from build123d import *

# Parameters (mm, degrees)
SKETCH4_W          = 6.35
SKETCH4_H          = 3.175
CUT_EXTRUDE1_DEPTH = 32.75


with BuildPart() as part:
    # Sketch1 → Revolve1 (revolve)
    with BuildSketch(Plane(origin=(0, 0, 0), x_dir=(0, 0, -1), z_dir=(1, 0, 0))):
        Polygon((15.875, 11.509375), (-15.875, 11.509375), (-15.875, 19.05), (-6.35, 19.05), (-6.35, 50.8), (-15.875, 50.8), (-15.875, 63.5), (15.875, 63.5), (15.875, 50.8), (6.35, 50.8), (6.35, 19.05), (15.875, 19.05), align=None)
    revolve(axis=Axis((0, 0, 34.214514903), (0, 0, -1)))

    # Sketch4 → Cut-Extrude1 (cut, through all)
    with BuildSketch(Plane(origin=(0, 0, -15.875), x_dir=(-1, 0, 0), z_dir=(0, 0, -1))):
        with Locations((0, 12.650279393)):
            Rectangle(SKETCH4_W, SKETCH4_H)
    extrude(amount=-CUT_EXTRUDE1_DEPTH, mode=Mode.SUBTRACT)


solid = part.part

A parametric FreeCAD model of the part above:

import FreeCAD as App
import Part
import Sketcher
from FreeCAD import Vector
Q = App.Units.Quantity


def add_polygon(sketch, points):
    """Adds a closed chain of lines whose ends are joined by coincident constraints."""
    first, n = sketch.GeometryCount, len(points)
    for a, b in zip(points, points[1:] + points[:1]):
        sketch.addGeometry(Part.LineSegment(App.Vector(*a, 0), App.Vector(*b, 0)), False)
    for i in range(n):
        sketch.addConstraint(Sketcher.Constraint("Coincident", first + i, 2, first + (i + 1) % n, 1))

doc = App.newDocument("Part")
params = doc.addObject("Spreadsheet::Sheet", "Params")
for row, (alias, value) in enumerate([
    ("sketch1_width", "0.5 in"),
    ("sketch1_width2", "1.25 in"),
    ("sketch1_width3", "0.296875 in"),
    ("revolution_angle", "360 deg"),
    ("sketch2_width", "0.25 in"),
    ("sketch2_height", "0.125 in"),
], start=1):
    params.set(f"A{row}", alias)
    params.set(f"B{row}", "=" + value)
    params.setAlias(f"B{row}", alias)

body = doc.addObject("PartDesign::Body", "Body")

# Sketch on YZ plane
sketch1 = body.newObject("Sketcher::SketchObject", "Sketch")
sketch1.AttachmentSupport = (doc.getObject("YZ_Plane"), [""])
sketch1.MapMode = "FlatFace"
add_polygon(sketch1, [(12, 16), (12, -16), (19, -16), (19, -6), (51, -6), (51, -16), (64, -16), (64, 16), (51, 16), (51, 6), (19, 6), (19, 16)])  # lines 0-11
sketch1.addConstraint([
    Sketcher.Constraint("Vertical", 0),
    Sketcher.Constraint("Horizontal", 1),
    Sketcher.Constraint("Vertical", 2),
    Sketcher.Constraint("Horizontal", 3),
    Sketcher.Constraint("Vertical", 4),
    Sketcher.Constraint("Horizontal", 5),
    Sketcher.Constraint("Vertical", 6),
    Sketcher.Constraint("Horizontal", 7),
    Sketcher.Constraint("Vertical", 8),
    Sketcher.Constraint("Horizontal", 9),
    Sketcher.Constraint("Vertical", 10),
    Sketcher.Constraint("Horizontal", 11),
    Sketcher.Constraint("Symmetric", 4, 2, 7, 2, -1),
    Sketcher.Constraint("Symmetric", 2, 2, 9, 2, -1),
    Sketcher.Constraint("Horizontal", 1, 2, 4, 2),
    Sketcher.Constraint("Horizontal", 7, 2, 10, 2),
    Sketcher.Constraint("Equal", 9, 0),
    Sketcher.Constraint("DistanceX", 5, 1, 5, 2, Q("0.5 in")),
    Sketcher.Constraint("DistanceX", -1, 1, 3, 2, Q("2 in")),
    Sketcher.Constraint("DistanceX", 3, 1, 3, 2, Q("1.25 in")),
    Sketcher.Constraint("DistanceY", 3, 2, 8, 2, Q("0.5 in")),
    Sketcher.Constraint("DistanceX", 1, 1, 1, 2, Q("0.296875 in")),
])
sketch1.setExpression("Constraints[29]", "Params.sketch1_width")
sketch1.setExpression("Constraints[31]", "Params.sketch1_width2")
sketch1.setExpression("Constraints[33]", "Params.sketch1_width3")
revolution = body.newObject("PartDesign::Revolution", "Revolution")
revolution.Profile = sketch1
revolution.ReferenceAxis = (sketch1, ["V_Axis"])
revolution.setExpression("Angle", "Params.revolution_angle")

# Sketch on XY plane
sketch2 = body.newObject("Sketcher::SketchObject", "Sketch001")
sketch2.AttachmentSupport = (doc.getObject("XY_Plane"), [""])
sketch2.MapMode = "FlatFace"
sketch2.AttachmentOffset = App.Placement(Vector(0, 0, -0.625 * 25.4), App.Rotation())
add_polygon(sketch2, [(3.2, 14.2), (3.2, 11.1), (-3.2, 11.1), (-3.2, 14.2)])  # lines 0-3
sketch2.addConstraint([
    Sketcher.Constraint("Vertical", 0),
    Sketcher.Constraint("Horizontal", 1),
    Sketcher.Constraint("Vertical", 2),
    Sketcher.Constraint("Horizontal", 3),
    Sketcher.Constraint("DistanceX", 1, 2, 1, 1, Q("0.25 in")),
    Sketcher.Constraint("DistanceY", 0, 2, 0, 1, Q("0.125 in")),
    Sketcher.Constraint("DistanceX", -1, 1, 0, 2, Q("0.125 in")),
    Sketcher.Constraint("DistanceY", -1, 1, 0, 2, 11.062779),
])
sketch2.setExpression("Constraints[8]", "Params.sketch2_width")
sketch2.setExpression("Constraints[9]", "Params.sketch2_height")
pocket1 = body.newObject("PartDesign::Pocket", "Pocket")
pocket1.Profile = sketch2
pocket1.Type = "ThroughAll"
pocket1.Reversed = True

doc.recompute()
